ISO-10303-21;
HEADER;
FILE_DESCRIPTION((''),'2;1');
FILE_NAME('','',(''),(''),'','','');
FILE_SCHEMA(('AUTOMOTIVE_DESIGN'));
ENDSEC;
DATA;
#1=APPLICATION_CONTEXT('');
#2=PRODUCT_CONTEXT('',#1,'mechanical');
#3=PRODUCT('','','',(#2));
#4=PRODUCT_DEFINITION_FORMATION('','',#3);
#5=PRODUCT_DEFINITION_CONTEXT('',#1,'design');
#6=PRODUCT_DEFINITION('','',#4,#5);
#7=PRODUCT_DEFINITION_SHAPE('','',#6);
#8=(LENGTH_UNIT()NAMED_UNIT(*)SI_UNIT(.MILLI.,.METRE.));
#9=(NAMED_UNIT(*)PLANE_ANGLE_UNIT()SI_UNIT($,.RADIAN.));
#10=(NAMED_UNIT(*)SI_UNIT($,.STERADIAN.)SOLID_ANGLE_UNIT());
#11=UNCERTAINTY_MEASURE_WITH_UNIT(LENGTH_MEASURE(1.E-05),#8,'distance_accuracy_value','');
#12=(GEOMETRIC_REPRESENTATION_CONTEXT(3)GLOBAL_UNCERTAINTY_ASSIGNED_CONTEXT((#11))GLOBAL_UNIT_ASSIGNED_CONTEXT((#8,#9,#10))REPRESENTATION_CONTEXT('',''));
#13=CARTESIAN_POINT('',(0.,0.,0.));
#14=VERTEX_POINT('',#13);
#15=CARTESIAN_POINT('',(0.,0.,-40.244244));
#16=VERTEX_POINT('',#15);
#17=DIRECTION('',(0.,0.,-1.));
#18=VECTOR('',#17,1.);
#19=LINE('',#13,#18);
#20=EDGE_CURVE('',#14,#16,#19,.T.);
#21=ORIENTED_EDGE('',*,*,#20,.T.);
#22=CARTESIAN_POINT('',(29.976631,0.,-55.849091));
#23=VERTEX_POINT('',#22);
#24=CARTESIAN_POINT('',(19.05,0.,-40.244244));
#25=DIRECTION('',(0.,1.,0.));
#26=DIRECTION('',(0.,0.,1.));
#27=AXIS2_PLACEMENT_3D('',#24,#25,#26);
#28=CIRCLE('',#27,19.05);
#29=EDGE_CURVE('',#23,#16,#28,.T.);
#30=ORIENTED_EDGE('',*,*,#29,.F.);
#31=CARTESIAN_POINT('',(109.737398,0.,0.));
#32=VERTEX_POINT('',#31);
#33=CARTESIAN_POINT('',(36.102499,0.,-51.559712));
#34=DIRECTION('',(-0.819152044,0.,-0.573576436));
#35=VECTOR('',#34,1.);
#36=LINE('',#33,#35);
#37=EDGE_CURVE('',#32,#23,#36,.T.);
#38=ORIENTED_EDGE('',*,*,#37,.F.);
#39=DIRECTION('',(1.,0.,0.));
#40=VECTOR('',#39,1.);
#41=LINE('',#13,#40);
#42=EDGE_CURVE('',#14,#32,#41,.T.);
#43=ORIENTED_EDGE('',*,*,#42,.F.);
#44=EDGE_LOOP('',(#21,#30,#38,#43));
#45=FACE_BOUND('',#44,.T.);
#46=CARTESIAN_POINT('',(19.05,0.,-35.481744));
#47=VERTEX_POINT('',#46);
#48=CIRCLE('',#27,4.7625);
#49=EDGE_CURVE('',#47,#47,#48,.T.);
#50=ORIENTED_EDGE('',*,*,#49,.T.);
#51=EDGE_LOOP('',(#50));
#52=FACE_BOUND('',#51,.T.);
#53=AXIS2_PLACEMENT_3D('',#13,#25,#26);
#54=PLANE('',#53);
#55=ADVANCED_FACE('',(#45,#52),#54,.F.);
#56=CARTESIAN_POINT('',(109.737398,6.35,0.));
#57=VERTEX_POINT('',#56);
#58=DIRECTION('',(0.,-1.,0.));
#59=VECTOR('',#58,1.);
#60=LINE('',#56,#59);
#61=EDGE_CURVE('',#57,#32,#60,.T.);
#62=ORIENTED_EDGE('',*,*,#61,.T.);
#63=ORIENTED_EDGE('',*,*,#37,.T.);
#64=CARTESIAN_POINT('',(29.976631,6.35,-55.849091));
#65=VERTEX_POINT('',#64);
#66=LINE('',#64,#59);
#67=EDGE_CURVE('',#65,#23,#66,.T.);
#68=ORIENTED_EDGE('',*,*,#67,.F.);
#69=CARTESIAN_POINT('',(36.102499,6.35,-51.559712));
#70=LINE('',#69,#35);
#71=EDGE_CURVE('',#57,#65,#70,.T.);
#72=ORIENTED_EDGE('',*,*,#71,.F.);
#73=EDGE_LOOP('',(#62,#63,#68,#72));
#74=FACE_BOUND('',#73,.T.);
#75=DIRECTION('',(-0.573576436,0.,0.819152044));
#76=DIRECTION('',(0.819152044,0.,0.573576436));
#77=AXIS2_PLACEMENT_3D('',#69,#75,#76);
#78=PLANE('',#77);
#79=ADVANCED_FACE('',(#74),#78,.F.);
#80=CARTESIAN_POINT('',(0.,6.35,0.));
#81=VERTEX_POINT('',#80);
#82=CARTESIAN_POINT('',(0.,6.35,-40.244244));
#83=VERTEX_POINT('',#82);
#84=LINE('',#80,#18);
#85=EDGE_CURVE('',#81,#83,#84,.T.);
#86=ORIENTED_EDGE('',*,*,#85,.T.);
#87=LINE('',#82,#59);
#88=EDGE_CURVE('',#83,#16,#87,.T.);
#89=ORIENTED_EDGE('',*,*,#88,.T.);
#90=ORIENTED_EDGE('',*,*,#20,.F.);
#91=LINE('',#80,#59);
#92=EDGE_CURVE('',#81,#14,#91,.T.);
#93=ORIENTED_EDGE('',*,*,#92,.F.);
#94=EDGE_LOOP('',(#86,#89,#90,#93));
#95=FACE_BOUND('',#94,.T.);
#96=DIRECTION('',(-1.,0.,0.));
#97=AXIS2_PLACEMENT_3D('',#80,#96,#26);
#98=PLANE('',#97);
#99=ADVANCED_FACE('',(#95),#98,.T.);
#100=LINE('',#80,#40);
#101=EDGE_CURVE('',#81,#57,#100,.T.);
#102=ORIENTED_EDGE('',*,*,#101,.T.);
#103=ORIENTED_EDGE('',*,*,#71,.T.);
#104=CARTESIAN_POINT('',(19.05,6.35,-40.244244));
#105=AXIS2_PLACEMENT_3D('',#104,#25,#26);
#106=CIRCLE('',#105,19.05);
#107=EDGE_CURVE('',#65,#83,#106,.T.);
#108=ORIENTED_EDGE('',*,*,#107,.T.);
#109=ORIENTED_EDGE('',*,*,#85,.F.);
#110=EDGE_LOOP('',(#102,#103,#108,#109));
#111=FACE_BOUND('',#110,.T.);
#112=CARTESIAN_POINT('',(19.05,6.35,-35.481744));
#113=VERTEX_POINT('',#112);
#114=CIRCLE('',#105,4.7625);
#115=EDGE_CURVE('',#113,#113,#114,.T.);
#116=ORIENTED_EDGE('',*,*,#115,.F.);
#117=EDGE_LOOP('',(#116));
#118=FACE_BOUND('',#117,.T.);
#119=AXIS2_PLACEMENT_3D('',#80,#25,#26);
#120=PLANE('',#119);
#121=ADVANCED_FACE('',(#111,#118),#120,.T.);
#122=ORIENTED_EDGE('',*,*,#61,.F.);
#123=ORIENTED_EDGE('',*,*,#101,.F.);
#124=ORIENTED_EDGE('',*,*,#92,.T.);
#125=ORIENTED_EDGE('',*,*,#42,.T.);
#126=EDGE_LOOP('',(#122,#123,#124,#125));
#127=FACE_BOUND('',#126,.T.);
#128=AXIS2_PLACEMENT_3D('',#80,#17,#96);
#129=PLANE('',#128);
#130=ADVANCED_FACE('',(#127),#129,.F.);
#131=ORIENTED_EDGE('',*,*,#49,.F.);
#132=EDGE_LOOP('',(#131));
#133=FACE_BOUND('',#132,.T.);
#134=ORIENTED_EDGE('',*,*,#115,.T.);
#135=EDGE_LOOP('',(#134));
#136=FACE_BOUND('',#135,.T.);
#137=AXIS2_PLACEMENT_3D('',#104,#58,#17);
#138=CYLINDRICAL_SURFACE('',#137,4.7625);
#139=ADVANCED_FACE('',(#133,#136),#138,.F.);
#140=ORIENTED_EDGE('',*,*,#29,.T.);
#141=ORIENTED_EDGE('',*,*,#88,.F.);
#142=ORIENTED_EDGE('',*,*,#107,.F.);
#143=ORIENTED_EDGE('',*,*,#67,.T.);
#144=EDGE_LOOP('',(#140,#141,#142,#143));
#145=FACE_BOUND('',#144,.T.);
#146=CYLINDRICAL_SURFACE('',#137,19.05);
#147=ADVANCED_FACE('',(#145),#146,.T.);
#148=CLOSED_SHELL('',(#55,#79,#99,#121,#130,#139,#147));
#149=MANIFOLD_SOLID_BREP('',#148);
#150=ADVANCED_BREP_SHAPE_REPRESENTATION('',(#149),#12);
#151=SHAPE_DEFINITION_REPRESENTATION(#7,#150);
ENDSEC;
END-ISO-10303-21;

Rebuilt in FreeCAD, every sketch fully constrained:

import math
import FreeCAD as App
import Part
import Sketcher
Q = App.Units.Quantity

doc = App.newDocument("Part")
body = doc.addObject("PartDesign::Body", "Body")

sketch1 = body.newObject("Sketcher::SketchObject", "Sketch")
sketch1.AttachmentSupport = (doc.getObject("XZ_Plane"), [""])
sketch1.MapMode = "FlatFace"
sketch1.addGeometry(Part.ArcOfCircle(Part.Circle(App.Vector(19, -40.2, 0), App.Vector(0, 0, 1), 19), math.radians(180), math.radians(270)), False)
sketch1.addGeometry(Part.LineSegment(App.Vector(0, -40.2, 0), App.Vector(0, 0, 0)), False)
sketch1.addGeometry(Part.LineSegment(App.Vector(0, 0, 0), App.Vector(109.7, 0, 0)), False)
sketch1.addGeometry(Part.LineSegment(App.Vector(109.7, 0, 0), App.Vector(30, -55.8, 0)), False)
sketch1.addGeometry(Part.ArcOfCircle(Part.Circle(App.Vector(19.1, -40.2, 0), App.Vector(0, 0, 1), 19), math.radians(-90), math.radians(-55)), False)
sketch1.addGeometry(Part.ArcOfCircle(Part.Circle(App.Vector(19.1, -40.2, 0), App.Vector(0, 0, 1), 4.8), math.radians(90), math.radians(270)), False)
sketch1.addGeometry(Part.ArcOfCircle(Part.Circle(App.Vector(19, -40.2, 0), App.Vector(0, 0, 1), 4.8), math.radians(-90), math.radians(0)), False)
sketch1.addGeometry(Part.ArcOfCircle(Part.Circle(App.Vector(19, -40.2, 0), App.Vector(0, 0, 1), 4.8), math.radians(0), math.radians(90)), False)
sketch1.addConstraint(Sketcher.Constraint("Tangent", 0, 1, 1, 1))
sketch1.addConstraint(Sketcher.Constraint("Coincident", 1, 2, 2, 1))
sketch1.addConstraint(Sketcher.Constraint("Coincident", 2, 2, 3, 1))
sketch1.addConstraint(Sketcher.Constraint("Tangent", 3, 2, 4, 2))
sketch1.addConstraint(Sketcher.Constraint("Tangent", 4, 1, 0, 2))
sketch1.addConstraint(Sketcher.Constraint("Tangent", 5, 2, 6, 1))
sketch1.addConstraint(Sketcher.Constraint("Tangent", 6, 2, 7, 1))
sketch1.addConstraint(Sketcher.Constraint("Tangent", 7, 2, 5, 1))
sketch1.addConstraint(Sketcher.Constraint("Vertical", 1))
sketch1.addConstraint(Sketcher.Constraint("Horizontal", 2))
sketch1.addConstraint(Sketcher.Constraint("Coincident", 1, 2, -1, 1))
sketch1.addConstraint(Sketcher.Constraint("Coincident", 5, 3, 0, 3))
sketch1.addConstraint(Sketcher.Constraint("Equal", 0, 4))
sketch1.addConstraint(Sketcher.Constraint("Horizontal", 0, 1, 6, 2))
sketch1.addConstraint(Sketcher.Constraint("Vertical", 7, 3, 4, 1))
sketch1.addConstraint(Sketcher.Constraint("Vertical", 4, 1, 5, 2))
sketch1.addConstraint(Sketcher.Constraint("Vertical", 5, 2, 7, 2))
sketch1.addConstraint(Sketcher.Constraint("Radius", 0, Q("0.75 in")))
sketch1.addConstraint(Sketcher.Constraint("Angle", 3, Q("-145 deg")))
sketch1.addConstraint(Sketcher.Constraint("Radius", 5, Q("0.1875 in")))
sketch1.addConstraint(Sketcher.Constraint("DistanceX", 2, 1, 2, 2, Q("109.737398 mm")))
pad1 = body.newObject("PartDesign::Pad", "Pad")
pad1.Profile = sketch1
pad1.Length = Q("0.25 in")
pad1.Reversed = True

doc.recompute()
